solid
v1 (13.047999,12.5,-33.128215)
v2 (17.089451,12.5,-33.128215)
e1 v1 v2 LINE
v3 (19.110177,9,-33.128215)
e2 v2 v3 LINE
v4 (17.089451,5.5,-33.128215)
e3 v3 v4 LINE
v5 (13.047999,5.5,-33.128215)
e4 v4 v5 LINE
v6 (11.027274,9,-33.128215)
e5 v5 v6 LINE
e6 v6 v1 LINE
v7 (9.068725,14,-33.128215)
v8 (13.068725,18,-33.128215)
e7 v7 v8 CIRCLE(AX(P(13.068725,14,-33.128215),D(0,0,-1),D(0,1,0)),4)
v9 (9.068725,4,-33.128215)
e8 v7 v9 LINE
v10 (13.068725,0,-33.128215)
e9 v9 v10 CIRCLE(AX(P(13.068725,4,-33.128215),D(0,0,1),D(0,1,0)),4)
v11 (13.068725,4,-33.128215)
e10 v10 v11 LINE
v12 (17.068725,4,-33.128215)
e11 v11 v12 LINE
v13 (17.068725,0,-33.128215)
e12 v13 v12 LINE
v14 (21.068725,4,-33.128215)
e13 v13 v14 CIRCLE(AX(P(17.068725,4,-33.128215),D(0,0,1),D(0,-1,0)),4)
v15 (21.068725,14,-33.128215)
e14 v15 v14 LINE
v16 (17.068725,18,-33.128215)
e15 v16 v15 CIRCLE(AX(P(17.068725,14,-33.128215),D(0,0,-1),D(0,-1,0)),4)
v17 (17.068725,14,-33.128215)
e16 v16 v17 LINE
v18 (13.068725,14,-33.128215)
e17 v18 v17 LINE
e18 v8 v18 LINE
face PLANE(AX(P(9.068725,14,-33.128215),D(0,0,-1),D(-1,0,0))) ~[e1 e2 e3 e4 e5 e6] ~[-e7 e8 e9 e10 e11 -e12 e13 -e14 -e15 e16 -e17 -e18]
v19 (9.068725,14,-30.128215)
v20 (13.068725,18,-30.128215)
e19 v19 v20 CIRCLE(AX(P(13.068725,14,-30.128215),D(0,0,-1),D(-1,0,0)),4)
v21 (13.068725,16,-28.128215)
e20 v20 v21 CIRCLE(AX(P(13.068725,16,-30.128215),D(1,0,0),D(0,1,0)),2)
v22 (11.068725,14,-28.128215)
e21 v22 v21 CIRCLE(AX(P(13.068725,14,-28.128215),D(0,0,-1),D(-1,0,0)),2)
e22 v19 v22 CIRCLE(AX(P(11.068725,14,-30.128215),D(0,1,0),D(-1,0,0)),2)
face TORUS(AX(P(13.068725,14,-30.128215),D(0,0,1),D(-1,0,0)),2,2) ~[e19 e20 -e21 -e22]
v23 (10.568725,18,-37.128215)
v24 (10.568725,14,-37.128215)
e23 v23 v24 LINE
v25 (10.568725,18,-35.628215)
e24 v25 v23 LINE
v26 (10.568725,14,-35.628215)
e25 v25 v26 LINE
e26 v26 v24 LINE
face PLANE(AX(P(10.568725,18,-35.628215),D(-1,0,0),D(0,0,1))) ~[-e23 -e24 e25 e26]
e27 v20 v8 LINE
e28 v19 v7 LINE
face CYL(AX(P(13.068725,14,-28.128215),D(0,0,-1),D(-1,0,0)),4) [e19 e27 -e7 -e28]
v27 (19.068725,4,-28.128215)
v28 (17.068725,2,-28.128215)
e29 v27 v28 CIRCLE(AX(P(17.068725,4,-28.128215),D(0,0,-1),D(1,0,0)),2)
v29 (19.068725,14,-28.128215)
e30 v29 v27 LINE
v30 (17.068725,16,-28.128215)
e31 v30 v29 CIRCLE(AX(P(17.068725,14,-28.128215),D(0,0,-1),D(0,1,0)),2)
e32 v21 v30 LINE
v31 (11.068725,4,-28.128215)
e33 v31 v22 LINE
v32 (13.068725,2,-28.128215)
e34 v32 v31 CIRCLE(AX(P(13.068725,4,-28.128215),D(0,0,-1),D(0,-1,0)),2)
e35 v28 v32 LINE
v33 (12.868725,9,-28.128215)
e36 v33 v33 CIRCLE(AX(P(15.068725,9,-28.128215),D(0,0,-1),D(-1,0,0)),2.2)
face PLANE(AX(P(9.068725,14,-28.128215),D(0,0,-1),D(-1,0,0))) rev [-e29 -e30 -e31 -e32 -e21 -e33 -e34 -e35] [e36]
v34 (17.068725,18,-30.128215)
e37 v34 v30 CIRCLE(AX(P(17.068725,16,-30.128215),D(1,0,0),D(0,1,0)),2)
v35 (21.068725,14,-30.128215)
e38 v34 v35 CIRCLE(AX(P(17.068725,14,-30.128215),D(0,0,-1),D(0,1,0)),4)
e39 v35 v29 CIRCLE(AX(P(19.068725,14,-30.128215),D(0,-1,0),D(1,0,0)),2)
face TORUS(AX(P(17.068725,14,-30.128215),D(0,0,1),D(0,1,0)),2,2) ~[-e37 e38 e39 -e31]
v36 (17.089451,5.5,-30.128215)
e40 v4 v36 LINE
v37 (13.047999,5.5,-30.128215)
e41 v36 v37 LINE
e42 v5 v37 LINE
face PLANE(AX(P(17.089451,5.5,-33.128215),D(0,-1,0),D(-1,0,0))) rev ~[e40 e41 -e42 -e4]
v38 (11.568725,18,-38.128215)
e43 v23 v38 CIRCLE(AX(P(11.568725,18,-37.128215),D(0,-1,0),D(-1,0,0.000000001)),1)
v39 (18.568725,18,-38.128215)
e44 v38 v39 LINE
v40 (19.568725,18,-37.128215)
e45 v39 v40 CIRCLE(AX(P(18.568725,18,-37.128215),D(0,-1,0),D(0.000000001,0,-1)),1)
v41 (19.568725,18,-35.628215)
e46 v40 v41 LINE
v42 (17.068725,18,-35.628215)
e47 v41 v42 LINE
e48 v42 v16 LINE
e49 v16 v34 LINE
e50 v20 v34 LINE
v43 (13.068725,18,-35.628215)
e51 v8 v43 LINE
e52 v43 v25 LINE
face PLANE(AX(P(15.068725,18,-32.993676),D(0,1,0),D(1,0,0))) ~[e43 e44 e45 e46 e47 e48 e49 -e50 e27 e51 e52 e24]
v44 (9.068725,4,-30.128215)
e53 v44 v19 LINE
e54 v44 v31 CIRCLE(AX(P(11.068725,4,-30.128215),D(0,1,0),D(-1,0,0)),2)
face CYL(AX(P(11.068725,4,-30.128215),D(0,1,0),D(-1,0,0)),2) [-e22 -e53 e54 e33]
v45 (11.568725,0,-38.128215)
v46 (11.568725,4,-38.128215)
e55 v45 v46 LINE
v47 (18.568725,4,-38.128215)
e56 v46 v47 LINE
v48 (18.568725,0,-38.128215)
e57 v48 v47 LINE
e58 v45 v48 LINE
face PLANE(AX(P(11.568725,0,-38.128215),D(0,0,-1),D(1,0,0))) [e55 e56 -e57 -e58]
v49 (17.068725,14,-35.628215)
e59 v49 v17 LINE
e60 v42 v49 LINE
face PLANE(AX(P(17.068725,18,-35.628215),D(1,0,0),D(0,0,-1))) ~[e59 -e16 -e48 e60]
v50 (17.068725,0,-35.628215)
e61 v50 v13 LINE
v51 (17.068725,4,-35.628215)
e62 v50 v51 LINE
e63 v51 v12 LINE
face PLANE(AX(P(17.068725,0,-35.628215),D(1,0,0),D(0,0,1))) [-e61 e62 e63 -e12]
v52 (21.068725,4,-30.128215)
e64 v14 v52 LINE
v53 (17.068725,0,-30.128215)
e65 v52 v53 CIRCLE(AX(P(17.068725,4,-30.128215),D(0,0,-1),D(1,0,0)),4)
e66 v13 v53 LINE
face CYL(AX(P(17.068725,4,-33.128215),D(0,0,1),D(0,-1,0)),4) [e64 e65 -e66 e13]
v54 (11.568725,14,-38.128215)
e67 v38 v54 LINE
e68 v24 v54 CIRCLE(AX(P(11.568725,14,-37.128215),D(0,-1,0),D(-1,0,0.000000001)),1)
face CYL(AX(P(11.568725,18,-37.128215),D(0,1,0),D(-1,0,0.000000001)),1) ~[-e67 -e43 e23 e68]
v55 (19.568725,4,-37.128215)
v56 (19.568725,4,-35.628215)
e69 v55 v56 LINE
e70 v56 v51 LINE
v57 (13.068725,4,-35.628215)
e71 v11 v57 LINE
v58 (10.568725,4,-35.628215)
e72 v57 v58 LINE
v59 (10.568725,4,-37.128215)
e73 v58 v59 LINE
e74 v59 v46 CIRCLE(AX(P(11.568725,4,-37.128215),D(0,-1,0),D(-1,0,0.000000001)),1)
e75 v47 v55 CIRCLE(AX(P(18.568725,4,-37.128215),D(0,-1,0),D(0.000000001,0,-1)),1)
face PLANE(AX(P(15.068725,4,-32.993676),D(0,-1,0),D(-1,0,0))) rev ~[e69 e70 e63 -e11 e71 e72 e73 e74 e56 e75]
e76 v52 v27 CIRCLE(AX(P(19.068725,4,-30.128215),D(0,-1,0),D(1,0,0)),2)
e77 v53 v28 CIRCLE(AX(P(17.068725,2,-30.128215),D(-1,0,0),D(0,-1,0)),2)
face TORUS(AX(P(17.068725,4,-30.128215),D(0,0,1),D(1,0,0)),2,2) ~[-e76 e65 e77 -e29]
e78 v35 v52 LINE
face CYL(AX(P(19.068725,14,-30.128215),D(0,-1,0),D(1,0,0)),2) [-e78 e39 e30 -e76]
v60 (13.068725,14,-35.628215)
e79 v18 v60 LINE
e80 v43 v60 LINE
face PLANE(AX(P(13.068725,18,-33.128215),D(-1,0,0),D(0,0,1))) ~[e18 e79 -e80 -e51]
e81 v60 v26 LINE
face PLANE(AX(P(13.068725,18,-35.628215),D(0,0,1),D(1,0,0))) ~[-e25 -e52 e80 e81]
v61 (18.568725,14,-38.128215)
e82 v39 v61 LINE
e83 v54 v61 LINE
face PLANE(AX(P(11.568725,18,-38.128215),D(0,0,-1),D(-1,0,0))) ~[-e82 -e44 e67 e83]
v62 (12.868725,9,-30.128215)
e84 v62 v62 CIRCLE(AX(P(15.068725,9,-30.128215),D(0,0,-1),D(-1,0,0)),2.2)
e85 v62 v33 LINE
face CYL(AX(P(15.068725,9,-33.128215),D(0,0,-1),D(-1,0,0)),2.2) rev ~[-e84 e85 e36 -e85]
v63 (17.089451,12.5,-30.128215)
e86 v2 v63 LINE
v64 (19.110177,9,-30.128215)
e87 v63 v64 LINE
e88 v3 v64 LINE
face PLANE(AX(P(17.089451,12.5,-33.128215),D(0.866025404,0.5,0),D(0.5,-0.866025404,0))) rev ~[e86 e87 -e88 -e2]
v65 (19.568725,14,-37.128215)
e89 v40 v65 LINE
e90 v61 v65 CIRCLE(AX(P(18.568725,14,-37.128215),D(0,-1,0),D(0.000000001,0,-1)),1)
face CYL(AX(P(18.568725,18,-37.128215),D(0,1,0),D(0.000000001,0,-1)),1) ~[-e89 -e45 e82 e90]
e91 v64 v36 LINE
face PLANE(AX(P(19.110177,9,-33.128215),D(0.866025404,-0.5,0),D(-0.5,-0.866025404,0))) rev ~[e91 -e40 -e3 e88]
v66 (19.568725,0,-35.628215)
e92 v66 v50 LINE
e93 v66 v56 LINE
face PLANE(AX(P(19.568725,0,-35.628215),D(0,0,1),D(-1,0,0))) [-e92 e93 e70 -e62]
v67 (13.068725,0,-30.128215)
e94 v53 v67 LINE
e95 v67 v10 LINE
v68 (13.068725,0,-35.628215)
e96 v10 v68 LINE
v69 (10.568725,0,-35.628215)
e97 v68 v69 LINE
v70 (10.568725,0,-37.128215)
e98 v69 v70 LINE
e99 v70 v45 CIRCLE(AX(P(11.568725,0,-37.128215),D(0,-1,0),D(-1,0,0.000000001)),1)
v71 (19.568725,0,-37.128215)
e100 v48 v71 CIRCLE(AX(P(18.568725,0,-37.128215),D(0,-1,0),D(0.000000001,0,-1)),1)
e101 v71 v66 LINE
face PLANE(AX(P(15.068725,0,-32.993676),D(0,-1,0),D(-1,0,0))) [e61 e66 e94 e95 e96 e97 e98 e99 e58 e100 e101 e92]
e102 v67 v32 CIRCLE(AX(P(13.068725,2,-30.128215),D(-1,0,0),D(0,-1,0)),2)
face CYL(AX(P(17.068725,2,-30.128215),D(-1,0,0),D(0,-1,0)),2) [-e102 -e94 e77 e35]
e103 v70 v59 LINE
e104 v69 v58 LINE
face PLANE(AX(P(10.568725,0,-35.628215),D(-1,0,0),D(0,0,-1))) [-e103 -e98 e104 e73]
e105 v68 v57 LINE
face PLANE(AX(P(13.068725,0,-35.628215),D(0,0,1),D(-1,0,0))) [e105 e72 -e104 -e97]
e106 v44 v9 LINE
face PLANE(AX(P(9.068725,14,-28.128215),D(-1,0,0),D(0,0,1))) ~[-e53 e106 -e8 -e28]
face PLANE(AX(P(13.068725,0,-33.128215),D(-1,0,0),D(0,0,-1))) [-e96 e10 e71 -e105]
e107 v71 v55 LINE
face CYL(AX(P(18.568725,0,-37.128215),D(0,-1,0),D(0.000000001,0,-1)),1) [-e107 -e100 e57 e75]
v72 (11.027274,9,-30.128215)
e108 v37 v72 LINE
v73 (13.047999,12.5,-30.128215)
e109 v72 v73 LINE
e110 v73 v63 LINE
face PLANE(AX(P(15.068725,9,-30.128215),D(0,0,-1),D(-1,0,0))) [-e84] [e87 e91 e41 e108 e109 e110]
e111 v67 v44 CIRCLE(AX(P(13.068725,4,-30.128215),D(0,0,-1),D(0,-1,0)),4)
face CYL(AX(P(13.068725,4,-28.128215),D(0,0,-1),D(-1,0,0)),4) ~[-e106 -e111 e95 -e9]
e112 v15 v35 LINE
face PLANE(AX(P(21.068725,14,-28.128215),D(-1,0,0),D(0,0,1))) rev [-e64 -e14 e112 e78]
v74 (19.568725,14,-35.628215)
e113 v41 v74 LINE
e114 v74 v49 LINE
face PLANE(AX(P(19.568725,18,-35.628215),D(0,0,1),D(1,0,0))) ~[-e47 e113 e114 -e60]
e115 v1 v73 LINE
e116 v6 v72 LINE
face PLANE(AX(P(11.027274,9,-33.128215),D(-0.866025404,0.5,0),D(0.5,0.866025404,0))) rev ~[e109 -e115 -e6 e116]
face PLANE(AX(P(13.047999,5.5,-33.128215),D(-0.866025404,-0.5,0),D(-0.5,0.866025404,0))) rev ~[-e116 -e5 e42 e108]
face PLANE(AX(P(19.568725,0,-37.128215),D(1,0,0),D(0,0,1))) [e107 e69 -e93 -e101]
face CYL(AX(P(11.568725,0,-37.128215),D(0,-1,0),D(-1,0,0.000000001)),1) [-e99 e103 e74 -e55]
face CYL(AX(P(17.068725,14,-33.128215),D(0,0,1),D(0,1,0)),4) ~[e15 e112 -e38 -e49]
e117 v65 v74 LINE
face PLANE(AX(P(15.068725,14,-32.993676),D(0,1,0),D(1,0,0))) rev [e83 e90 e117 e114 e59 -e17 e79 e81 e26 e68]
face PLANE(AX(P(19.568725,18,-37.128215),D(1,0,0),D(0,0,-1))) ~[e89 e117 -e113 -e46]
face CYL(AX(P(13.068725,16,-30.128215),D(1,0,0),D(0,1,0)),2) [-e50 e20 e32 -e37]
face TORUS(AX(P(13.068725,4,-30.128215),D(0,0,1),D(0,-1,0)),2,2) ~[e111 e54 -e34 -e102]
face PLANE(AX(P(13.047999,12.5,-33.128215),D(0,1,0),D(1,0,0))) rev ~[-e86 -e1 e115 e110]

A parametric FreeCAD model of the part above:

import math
import FreeCAD as App
import Part
import Sketcher
Q = App.Units.Quantity


def edges_at(feature, points):
    """Names of the edges that pass closest to the given points."""
    edges = feature.Shape.Edges
    near = lambda p: min(range(len(edges)), key=lambda i: edges[i].distToShape(Part.Vertex(*p))[0])
    return sorted({f"Edge{near(p) + 1}" for p in points})


def add_polygon(sketch, points):
    """Adds a closed chain of lines whose ends are joined by coincident constraints."""
    first, n = sketch.GeometryCount, len(points)
    for a, b in zip(points, points[1:] + points[:1]):
        sketch.addGeometry(Part.LineSegment(App.Vector(*a, 0), App.Vector(*b, 0)), False)
    for i in range(n):
        sketch.addConstraint(Sketcher.Constraint("Coincident", first + i, 2, first + (i + 1) % n, 1))

doc = App.newDocument("Part")
body = doc.addObject("PartDesign::Body", "Body")

# Sketch on XZ plane
sketch1 = doc.addObject("Sketcher::SketchObject", "Sketch")
body.addObject(sketch1)
sketch1.AttachmentSupport = (doc.XZ_Plane, [""])
sketch1.MapMode = "FlatFace"
sketch1.addGeometry([
    Part.LineSegment(App.Vector(18.6, -38.1, 0), App.Vector(11.6, -38.1, 0)),  # 0
    Part.ArcOfCircle(Part.Circle(App.Vector(11.6, -37.1, 0), App.Vector(0, 0, 1), 1), math.radians(180), math.radians(270)),  # 1
    Part.LineSegment(App.Vector(10.6, -37.1, 0), App.Vector(10.6, -35.6, 0)),  # 2
    Part.LineSegment(App.Vector(10.6, -35.6, 0), App.Vector(13.1, -35.6, 0)),  # 3
    Part.LineSegment(App.Vector(13.1, -35.6, 0), App.Vector(13.1, -33.1, 0)),  # 4
    Part.LineSegment(App.Vector(13.1, -33.1, 0), App.Vector(9.1, -33.1, 0)),  # 5
    Part.LineSegment(App.Vector(9.1, -33.1, 0), App.Vector(9.1, -28.1, 0)),  # 6
    Part.LineSegment(App.Vector(9.1, -28.1, 0), App.Vector(21.1, -28.1, 0)),  # 7
    Part.LineSegment(App.Vector(21.1, -28.1, 0), App.Vector(21.1, -33.1, 0)),  # 8
    Part.LineSegment(App.Vector(21.1, -33.1, 0), App.Vector(17.1, -33.1, 0)),  # 9
    Part.LineSegment(App.Vector(17.1, -33.1, 0), App.Vector(17.1, -35.6, 0)),  # 10
    Part.LineSegment(App.Vector(17.1, -35.6, 0), App.Vector(19.6, -35.6, 0)),  # 11
    Part.LineSegment(App.Vector(19.6, -35.6, 0), App.Vector(19.6, -37.1, 0)),  # 12
    Part.ArcOfCircle(Part.Circle(App.Vector(18.6, -37.1, 0), App.Vector(0, 0, 1), 1), math.radians(-90), math.radians(0)),  # 13
], False)
sketch1.addConstraint([
    Sketcher.Constraint("Tangent", 0, 2, 1, 2),
    Sketcher.Constraint("Tangent", 1, 1, 2, 1),
    Sketcher.Constraint("Coincident", 2, 2, 3, 1),
    Sketcher.Constraint("Coincident", 3, 2, 4, 1),
    Sketcher.Constraint("Coincident", 4, 2, 5, 1),
    Sketcher.Constraint("Coincident", 5, 2, 6, 1),
    Sketcher.Constraint("Coincident", 6, 2, 7, 1),
    Sketcher.Constraint("Coincident", 7, 2, 8, 1),
    Sketcher.Constraint("Coincident", 8, 2, 9, 1),
    Sketcher.Constraint("Coincident", 9, 2, 10, 1),
    Sketcher.Constraint("Coincident", 10, 2, 11, 1),
    Sketcher.Constraint("Coincident", 11, 2, 12, 1),
    Sketcher.Constraint("Tangent", 12, 2, 13, 2),
    Sketcher.Constraint("Tangent", 13, 1, 0, 1),
    Sketcher.Constraint("Horizontal", 0),
    Sketcher.Constraint("Vertical", 2),
    Sketcher.Constraint("Horizontal", 3),
    Sketcher.Constraint("Vertical", 4),
    Sketcher.Constraint("Horizontal", 5),
    Sketcher.Constraint("Vertical", 6),
    Sketcher.Constraint("Horizontal", 7),
    Sketcher.Constraint("Vertical", 8),
    Sketcher.Constraint("Horizontal", 9),
    Sketcher.Constraint("Vertical", 10),
    Sketcher.Constraint("Horizontal", 11),
    Sketcher.Constraint("Vertical", 12),
    Sketcher.Constraint("Equal", 1, 13),
    Sketcher.Constraint("Horizontal", 5, 2, 8, 2),
    Sketcher.Constraint("Horizontal", 3, 2, 10, 2),
    Sketcher.Constraint("Equal", 5, 9),
    Sketcher.Constraint("Equal", 3, 11),
    Sketcher.Constraint("Equal", 11, 4),
    Sketcher.Constraint("Radius", 1, Q("1 mm")),
    Sketcher.Constraint("DistanceX", 0, 2, 0, 1, Q("7 mm")),
    Sketcher.Constraint("DistanceX", 5, 2, 5, 1, Q("4 mm")),
    Sketcher.Constraint("DistanceX", 7, 1, 7, 2, Q("12 mm")),
    Sketcher.Constraint("DistanceY", 6, 1, 6, 2, Q("5 mm")),
    Sketcher.Constraint("DistanceY", 2, 1, 2, 2, Q("1.5 mm")),
    Sketcher.Constraint("DistanceX", -1, 1, 1, 3, Q("11.568725 mm")),
    Sketcher.Constraint("DistanceY", 1, 3, -1, 1, Q("37.128215 mm")),
])
pad1 = doc.addObject("PartDesign::Pad", "Pad")
body.addObject(pad1)
pad1.Profile = sketch1
pad1.Length = 4
pad1.Reversed = True

# Sketch on XZ plane
sketch2 = doc.addObject("Sketcher::SketchObject", "Sketch001")
body.addObject(sketch2)
sketch2.AttachmentSupport = (doc.XZ_Plane, [""])
sketch2.MapMode = "FlatFace"
sketch2.AttachmentOffset = App.Placement(App.Vector(0, 0, -4), App.Rotation())
add_polygon(sketch2, [(9, -33), (9, -28), (21, -28), (21, -33)])  # lines 0-3
sketch2.addConstraint([
    Sketcher.Constraint("Vertical", 0),
    Sketcher.Constraint("Horizontal", 1),
    Sketcher.Constraint("Vertical", 2),
    Sketcher.Constraint("Horizontal", 3),
    Sketcher.Constraint("DistanceX", 1, 1, 1, 2, Q("12 mm")),
    Sketcher.Constraint("DistanceY", 0, 1, 0, 2, Q("5 mm")),
    Sketcher.Constraint("DistanceX", -1, 1, 0, 2, Q("9.068725 mm")),
    Sketcher.Constraint("DistanceY", 0, 2, -1, 1, Q("28.128215 mm")),
])
pad2 = doc.addObject("PartDesign::Pad", "Pad001")
body.addObject(pad2)
pad2.Profile = sketch2
pad2.Length = 5
pad2.Reversed = True
body2 = doc.addObject("PartDesign::Body", "Body001")
doc.recompute()

body2.BaseFeature = body
doc.recompute()

mirroring = doc.addObject("Part::Mirroring", "Mirroring")
mirroring.Source = body
mirroring.Base = App.Vector(0, 9, 0)
mirroring.Normal = App.Vector(0, 1, 0)
body3 = doc.addObject("PartDesign::Body", "Body002")
body3.BaseFeature = mirroring
boolean = doc.addObject("PartDesign::Boolean", "Boolean")
body2.addObject(boolean)
boolean.Type = "Fuse"
boolean.addObjects([body3])
doc.recompute()

# Sketch on XY plane
sketch3 = doc.addObject("Sketcher::SketchObject", "Sketch002")
body2.addObject(sketch3)
sketch3.AttachmentSupport = (doc.getObject("XY_Plane001"), [""])
sketch3.MapMode = "FlatFace"
sketch3.AttachmentOffset = App.Placement(App.Vector(0, 0, -33.128215), App.Rotation())
sketch3.addGeometry(Part.Circle(App.Vector(15.1, 9, 0), App.Vector(0, 0, 1), 2.2), False)
sketch3.addConstraint([
    Sketcher.Constraint("Diameter", 0, Q("4.4 mm")),
    Sketcher.Constraint("DistanceY", -1, 1, 0, 3, Q("9 mm")),
    Sketcher.Constraint("DistanceX", -1, 1, 0, 3, Q("15.068725 mm")),
])
pocket1 = doc.addObject("PartDesign::Pocket", "Pocket")
body2.addObject(pocket1)
pocket1.Profile = sketch3
pocket1.Type = "UpToFirst"
pocket1.Reversed = True

# Sketch on XY plane
sketch4 = doc.addObject("Sketcher::SketchObject", "Sketch003")
body2.addObject(sketch4)
sketch4.AttachmentSupport = (doc.getObject("XY_Plane001"), [""])
sketch4.MapMode = "FlatFace"
sketch4.AttachmentOffset = App.Placement(App.Vector(0, 0, -33.128215), App.Rotation())
add_polygon(sketch4, [(13, 12.5), (17.1, 12.5), (19.1, 9), (17.1, 5.5), (13, 5.5), (11, 9)])  # lines 0-5
sketch4.addConstraint([
    Sketcher.Constraint("Horizontal", 0),
    Sketcher.Constraint("Horizontal", 3),
    Sketcher.Constraint("Parallel", 1, 4),
    Sketcher.Constraint("Parallel", 2, 5),
    Sketcher.Constraint("Horizontal", 1, 2, 4, 2),
    Sketcher.Constraint("Vertical", 0, 2, 2, 2),
    Sketcher.Constraint("Vertical", 3, 2, 5, 2),
    Sketcher.Constraint("Angle", 1, Q("-60 deg")),
    Sketcher.Constraint("DistanceY", -1, 1, 1, 2, Q("9 mm")),
    Sketcher.Constraint("DistanceY", 2, 2, 0, 2, Q("7 mm")),
    Sketcher.Constraint("DistanceX", -1, 1, 3, 2, Q("13.047999 mm")),
    Sketcher.Constraint("DistanceX", 0, 1, 0, 2, Q("4.041452 mm")),
])
pocket2 = doc.addObject("PartDesign::Pocket", "Pocket001")
body2.addObject(pocket2)
pocket2.Profile = sketch4
pocket2.Length = 3
pocket2.Reversed = True
doc.recompute()

fillet = doc.addObject("PartDesign::Fillet", "Fillet")
body2.addObject(fillet)
fillet.Base = (pocket2, edges_at(pocket2, [
    (9.069, 0, -30.628),
    (9.069, 18, -30.628),
    (21.069, 18, -30.628),
    (21.069, 0, -30.628),
]))
fillet.Radius = 4
doc.recompute()

fillet2 = doc.addObject("PartDesign::Fillet", "Fillet001")
body2.addObject(fillet2)
fillet2.Base = (fillet, edges_at(fillet, [
    (9.069, 9, -28.128),
    (15.069, 0, -28.128),
    (21.069, 9, -28.128),
    (15.069, 18, -28.128),
    (19.897, 16.828, -28.128),
    (19.897, 1.172, -28.128),
    (10.24, 16.828, -28.128),
    (10.24, 1.172, -28.128),
]))
fillet2.Radius = 2
mirroring.Visibility = False

doc.recompute()
